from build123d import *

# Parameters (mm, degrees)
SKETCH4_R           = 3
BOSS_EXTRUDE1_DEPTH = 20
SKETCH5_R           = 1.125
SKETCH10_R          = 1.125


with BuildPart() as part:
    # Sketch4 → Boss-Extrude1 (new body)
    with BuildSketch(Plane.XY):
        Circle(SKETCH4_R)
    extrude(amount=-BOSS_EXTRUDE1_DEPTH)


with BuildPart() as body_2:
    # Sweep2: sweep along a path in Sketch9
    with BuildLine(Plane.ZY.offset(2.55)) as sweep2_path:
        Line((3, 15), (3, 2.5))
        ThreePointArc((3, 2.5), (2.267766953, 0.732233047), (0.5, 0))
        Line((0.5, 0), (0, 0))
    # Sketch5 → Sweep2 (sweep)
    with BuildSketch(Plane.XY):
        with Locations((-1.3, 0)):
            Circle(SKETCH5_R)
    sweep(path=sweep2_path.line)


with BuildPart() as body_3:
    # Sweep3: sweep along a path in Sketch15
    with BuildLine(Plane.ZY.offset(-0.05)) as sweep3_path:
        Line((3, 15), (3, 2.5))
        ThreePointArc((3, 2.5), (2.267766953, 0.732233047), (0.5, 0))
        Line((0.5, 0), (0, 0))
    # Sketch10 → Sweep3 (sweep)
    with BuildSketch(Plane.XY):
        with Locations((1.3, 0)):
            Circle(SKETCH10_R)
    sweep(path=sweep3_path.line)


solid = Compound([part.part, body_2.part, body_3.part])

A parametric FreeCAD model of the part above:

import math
import FreeCAD as App
import Part
import Sketcher

V = App.Vector
Q = App.Units.Quantity

doc = App.newDocument("Part")
body = doc.addObject("PartDesign::Body", "Body")

# Sketch on XY plane
sketch1 = body.newObject("Sketcher::SketchObject", "Sketch")
sketch1.AttachmentSupport = (doc.getObject("XY_Plane"), [""])
sketch1.MapMode = "FlatFace"
sketch1.addGeometry(Part.Circle(V(0, 0, 0), V(0, 0, 1), 3), False)
sketch1.addConstraint([
    Sketcher.Constraint("Coincident", 0, 3, -1, 1),
    Sketcher.Constraint("Diameter", 0, Q("6 mm")),
])
pad1 = body.newObject("PartDesign::Pad", "Pad")
pad1.Profile = sketch1
pad1.Length = 20
pad1.Reversed = True
body2 = doc.addObject("PartDesign::Body", "Body001")

# Sketch on XY plane
sketch2 = body2.newObject("Sketcher::SketchObject", "Sketch001")
sketch2.AttachmentSupport = (doc.getObject("XY_Plane001"), [""])
sketch2.MapMode = "FlatFace"
sketch2.addGeometry(Part.Circle(V(-1.3, 0, 0), V(0, 0, 1), 1.1), False)
sketch2.addConstraint([
    Sketcher.Constraint("PointOnObject", 0, 3, -1),
    Sketcher.Constraint("Diameter", 0, Q("2.25 mm")),
    Sketcher.Constraint("DistanceX", 0, 3, -1, 1, Q("1.3 mm")),
])

# Sketch on YZ plane
sketch3 = body2.newObject("Sketcher::SketchObject", "Sketch002")
sketch3.AttachmentSupport = (doc.getObject("YZ_Plane001"), [""])
sketch3.MapMode = "FlatFace"
sketch3.AttachmentOffset = App.Placement(V(0, 0, -2.55), App.Rotation())
sketch3.addGeometry([
    Part.LineSegment(V(15, 3, 0), V(2.5, 3, 0)),
    Part.ArcOfCircle(Part.Circle(V(2.5, 0.5, 0), V(0, 0, 1), 2.5), math.radians(90), math.radians(180)),
    Part.LineSegment(V(0, 0.5, 0), V(0, 0, 0)),
], False)
sketch3.addConstraint([
    Sketcher.Constraint("Tangent", 0, 2, 1, 1),
    Sketcher.Constraint("Tangent", 1, 2, 2, 1),
    Sketcher.Constraint("Horizontal", 0),
    Sketcher.Constraint("Vertical", 2),
    Sketcher.Constraint("Coincident", 2, 2, -1, 1),
    Sketcher.Constraint("Radius", 1, Q("2.5 mm")),
    Sketcher.Constraint("DistanceX", 0, 2, 0, 1, Q("12.5 mm")),
    Sketcher.Constraint("DistanceY", 2, 2, 2, 1, Q("0.5 mm")),
])
doc.recompute()

additivepipe = body2.newObject("PartDesign::AdditivePipe", "AdditivePipe")
additivepipe.Profile = sketch2
additivepipe.Spine = (sketch3, ["Edge1", "Edge2", "Edge3"])
body3 = doc.addObject("PartDesign::Body", "Body002")

# Sketch on XY plane
sketch4 = body3.newObject("Sketcher::SketchObject", "Sketch003")
sketch4.AttachmentSupport = (doc.getObject("XY_Plane002"), [""])
sketch4.MapMode = "FlatFace"
sketch4.addGeometry(Part.Circle(V(1.3, 0, 0), V(0, 0, 1), 1.1), False)
sketch4.addConstraint([
    Sketcher.Constraint("PointOnObject", 0, 3, -1),
    Sketcher.Constraint("Diameter", 0, Q("2.25 mm")),
    Sketcher.Constraint("DistanceX", -1, 1, 0, 3, Q("1.3 mm")),
])

# Sketch on YZ plane
sketch5 = body3.newObject("Sketcher::SketchObject", "Sketch004")
sketch5.AttachmentSupport = (doc.getObject("YZ_Plane002"), [""])
sketch5.MapMode = "FlatFace"
sketch5.AttachmentOffset = App.Placement(V(0, 0, 0.05), App.Rotation())
sketch5.addGeometry([
    Part.LineSegment(V(15, 3, 0), V(2.5, 3, 0)),
    Part.ArcOfCircle(Part.Circle(V(2.5, 0.5, 0), V(0, 0, 1), 2.5), math.radians(90), math.radians(180)),
    Part.LineSegment(V(0, 0.5, 0), V(0, 0, 0)),
], False)
sketch5.addConstraint([
    Sketcher.Constraint("Tangent", 0, 2, 1, 1),
    Sketcher.Constraint("Tangent", 1, 2, 2, 1),
    Sketcher.Constraint("Horizontal", 0),
    Sketcher.Constraint("Vertical", 2),
    Sketcher.Constraint("Coincident", 2, 2, -1, 1),
    Sketcher.Constraint("Radius", 1, Q("2.5 mm")),
    Sketcher.Constraint("DistanceX", 0, 2, 0, 1, Q("12.5 mm")),
    Sketcher.Constraint("DistanceY", 2, 2, 2, 1, Q("0.5 mm")),
])
doc.recompute()

additivepipe2 = body3.newObject("PartDesign::AdditivePipe", "AdditivePipe001")
additivepipe2.Profile = sketch4
additivepipe2.Spine = (sketch5, ["Edge1", "Edge2", "Edge3"])

doc.recompute()
